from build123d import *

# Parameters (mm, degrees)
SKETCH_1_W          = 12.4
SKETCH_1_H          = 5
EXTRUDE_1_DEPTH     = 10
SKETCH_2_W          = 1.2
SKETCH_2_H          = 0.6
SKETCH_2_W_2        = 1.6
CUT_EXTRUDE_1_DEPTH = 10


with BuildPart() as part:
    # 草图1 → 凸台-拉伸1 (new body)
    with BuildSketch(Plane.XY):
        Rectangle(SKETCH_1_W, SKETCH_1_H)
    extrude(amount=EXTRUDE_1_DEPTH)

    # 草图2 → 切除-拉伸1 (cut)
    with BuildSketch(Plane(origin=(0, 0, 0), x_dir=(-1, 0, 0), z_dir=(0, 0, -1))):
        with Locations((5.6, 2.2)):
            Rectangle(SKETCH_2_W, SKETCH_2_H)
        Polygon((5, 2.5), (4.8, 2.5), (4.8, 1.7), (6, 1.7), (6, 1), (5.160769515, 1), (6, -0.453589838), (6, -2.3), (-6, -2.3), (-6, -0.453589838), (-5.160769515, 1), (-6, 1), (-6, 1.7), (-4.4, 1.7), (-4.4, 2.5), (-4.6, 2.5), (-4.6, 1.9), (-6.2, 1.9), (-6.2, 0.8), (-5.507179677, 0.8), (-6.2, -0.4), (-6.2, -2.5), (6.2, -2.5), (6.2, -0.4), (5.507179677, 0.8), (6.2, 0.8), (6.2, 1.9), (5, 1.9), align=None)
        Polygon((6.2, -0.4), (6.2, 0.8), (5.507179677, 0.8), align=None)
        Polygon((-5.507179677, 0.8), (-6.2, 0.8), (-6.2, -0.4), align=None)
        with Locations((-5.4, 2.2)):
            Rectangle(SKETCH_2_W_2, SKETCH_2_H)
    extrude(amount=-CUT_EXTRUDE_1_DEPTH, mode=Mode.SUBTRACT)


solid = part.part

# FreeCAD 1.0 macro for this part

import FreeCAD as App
import Part
import Sketcher
Q = App.Units.Quantity

doc = App.newDocument("Part")
body = doc.addObject("PartDesign::Body", "Body")

# Sketch on XY plane
sketch1 = doc.addObject("Sketcher::SketchObject", "Sketch")
body.addObject(sketch1)
sketch1.AttachmentSupport = (doc.XY_Plane, [""])
sketch1.MapMode = "FlatFace"
sketch1.addGeometry([
    Part.LineSegment(App.Vector(-6, 2, 0), App.Vector(-6, -2, 0)),
    Part.LineSegment(App.Vector(-6, -2, 0), App.Vector(6, -2, 0)),
    Part.LineSegment(App.Vector(6, -2, 0), App.Vector(6, 2, 0)),
    Part.LineSegment(App.Vector(6, 2, 0), App.Vector(-6, 2, 0)),
], False)
sketch1.addConstraint([
    Sketcher.Constraint("Coincident", 0, 2, 1, 1),
    Sketcher.Constraint("Coincident", 1, 2, 2, 1),
    Sketcher.Constraint("Coincident", 2, 2, 3, 1),
    Sketcher.Constraint("Coincident", 3, 2, 0, 1),
    Sketcher.Constraint("Vertical", 0),
    Sketcher.Constraint("Horizontal", 1),
    Sketcher.Constraint("Vertical", 2),
    Sketcher.Constraint("Horizontal", 3),
    Sketcher.Constraint("Symmetric", 0, 2, 2, 2, -1, 1),
    Sketcher.Constraint("DistanceY", 0, 2, 0, 1, Q("5 mm")),
    Sketcher.Constraint("DistanceX", 1, 1, 1, 2, Q("12.4 mm")),
])
pad1 = doc.addObject("PartDesign::Pad", "Pad")
body.addObject(pad1)
pad1.Profile = sketch1
pad1.Length = 10

# Sketch on XY plane
sketch2 = doc.addObject("Sketcher::SketchObject", "Sketch001")
body.addObject(sketch2)
sketch2.AttachmentSupport = (doc.XY_Plane, [""])
sketch2.MapMode = "FlatFace"
sketch2.addGeometry([
    Part.LineSegment(App.Vector(-6.2, 2.5, 0), App.Vector(-4.8, 2.5, 0)),  # 0
    Part.LineSegment(App.Vector(-4.8, 2.5, 0), App.Vector(-4.8, 1.7, 0)),  # 1
    Part.LineSegment(App.Vector(-4.8, 1.7, 0), App.Vector(-6, 1.7, 0)),  # 2
    Part.LineSegment(App.Vector(-6, 1.7, 0), App.Vector(-6, 1, 0)),  # 3
    Part.LineSegment(App.Vector(-6, 1, 0), App.Vector(-5.2, 1, 0)),  # 4
    Part.LineSegment(App.Vector(-5.2, 1, 0), App.Vector(-6, -0.5, 0)),  # 5
    Part.LineSegment(App.Vector(-6, -0.5, 0), App.Vector(-6, -2.3, 0)),  # 6
    Part.LineSegment(App.Vector(-6, -2.3, 0), App.Vector(6, -2.3, 0)),  # 7
    Part.LineSegment(App.Vector(6, -2.3, 0), App.Vector(6, -0.5, 0)),  # 8
    Part.LineSegment(App.Vector(6, -0.5, 0), App.Vector(5.2, 1, 0)),  # 9
    Part.LineSegment(App.Vector(5.2, 1, 0), App.Vector(6, 1, 0)),  # 10
    Part.LineSegment(App.Vector(6, 1, 0), App.Vector(6, 1.7, 0)),  # 11
    Part.LineSegment(App.Vector(6, 1.7, 0), App.Vector(4.4, 1.7, 0)),  # 12
    Part.LineSegment(App.Vector(4.4, 1.7, 0), App.Vector(4.4, 2.5, 0)),  # 13
    Part.LineSegment(App.Vector(4.4, 2.5, 0), App.Vector(6.2, 2.5, 0)),  # 14
    Part.LineSegment(App.Vector(6.2, 2.5, 0), App.Vector(6.2, -2.5, 0)),  # 15
    Part.LineSegment(App.Vector(6.2, -2.5, 0), App.Vector(-6.2, -2.5, 0)),  # 16
    Part.LineSegment(App.Vector(-6.2, -2.5, 0), App.Vector(-6.2, 2.5, 0)),  # 17
], False)
sketch2.addConstraint([
    Sketcher.Constraint("Coincident", 0, 2, 1, 1),
    Sketcher.Constraint("Coincident", 1, 2, 2, 1),
    Sketcher.Constraint("Coincident", 2, 2, 3, 1),
    Sketcher.Constraint("Coincident", 3, 2, 4, 1),
    Sketcher.Constraint("Coincident", 4, 2, 5, 1),
    Sketcher.Constraint("Coincident", 5, 2, 6, 1),
    Sketcher.Constraint("Coincident", 6, 2, 7, 1),
    Sketcher.Constraint("Coincident", 7, 2, 8, 1),
    Sketcher.Constraint("Coincident", 8, 2, 9, 1),
    Sketcher.Constraint("Coincident", 9, 2, 10, 1),
    Sketcher.Constraint("Coincident", 10, 2, 11, 1),
    Sketcher.Constraint("Coincident", 11, 2, 12, 1),
    Sketcher.Constraint("Coincident", 12, 2, 13, 1),
    Sketcher.Constraint("Coincident", 13, 2, 14, 1),
    Sketcher.Constraint("Coincident", 14, 2, 15, 1),
    Sketcher.Constraint("Coincident", 15, 2, 16, 1),
    Sketcher.Constraint("Coincident", 16, 2, 17, 1),
    Sketcher.Constraint("Coincident", 17, 2, 0, 1),
    Sketcher.Constraint("Horizontal", 0),
    Sketcher.Constraint("Vertical", 1),
    Sketcher.Constraint("Horizontal", 2),
    Sketcher.Constraint("Vertical", 3),
    Sketcher.Constraint("Horizontal", 4),
    Sketcher.Constraint("Vertical", 6),
    Sketcher.Constraint("Horizontal", 7),
    Sketcher.Constraint("Vertical", 8),
    Sketcher.Constraint("Horizontal", 10),
    Sketcher.Constraint("Vertical", 11),
    Sketcher.Constraint("Horizontal", 12),
    Sketcher.Constraint("Vertical", 13),
    Sketcher.Constraint("Horizontal", 14),
    Sketcher.Constraint("Vertical", 15),
    Sketcher.Constraint("Horizontal", 16),
    Sketcher.Constraint("Vertical", 17),
    Sketcher.Constraint("Symmetric", 14, 2, 16, 2, -1, 1),
    Sketcher.Constraint("Symmetric", 5, 2, 8, 2, -2),
    Sketcher.Constraint("Symmetric", 4, 2, 9, 2, -2),
    Sketcher.Constraint("Symmetric", 2, 2, 11, 2, -2),
    Sketcher.Constraint("Horizontal", 0, 2, 13, 2),
    Sketcher.Constraint("Vertical", 3, 2, 5, 2),
    Sketcher.Constraint("DistanceX", 7, 1, 7, 2, Q("12 mm")),
    Sketcher.Constraint("DistanceY", 15, 2, 15, 1, Q("5 mm")),
    Sketcher.Constraint("Angle", 5, Q("-120 deg")),
    Sketcher.Constraint("DistanceX", 0, 1, 0, 2, Q("1.4 mm")),
    Sketcher.Constraint("DistanceX", 2, 2, 2, 1, Q("1.2 mm")),
    Sketcher.Constraint("DistanceX", 12, 2, 12, 1, Q("1.6 mm")),
    Sketcher.Constraint("DistanceY", 1, 2, 1, 1, Q("0.8 mm")),
    Sketcher.Constraint("DistanceY", 3, 2, 3, 1, Q("0.7 mm")),
    Sketcher.Constraint("DistanceY", 6, 2, 2, 2, Q("4 mm")),
    Sketcher.Constraint("DistanceX", 4, 1, 4, 2, Q("0.83923 mm")),
])
pocket1 = doc.addObject("PartDesign::Pocket", "Pocket")
body.addObject(pocket1)
pocket1.Profile = sketch2
pocket1.Length = 10
pocket1.Reversed = True

doc.recompute()
